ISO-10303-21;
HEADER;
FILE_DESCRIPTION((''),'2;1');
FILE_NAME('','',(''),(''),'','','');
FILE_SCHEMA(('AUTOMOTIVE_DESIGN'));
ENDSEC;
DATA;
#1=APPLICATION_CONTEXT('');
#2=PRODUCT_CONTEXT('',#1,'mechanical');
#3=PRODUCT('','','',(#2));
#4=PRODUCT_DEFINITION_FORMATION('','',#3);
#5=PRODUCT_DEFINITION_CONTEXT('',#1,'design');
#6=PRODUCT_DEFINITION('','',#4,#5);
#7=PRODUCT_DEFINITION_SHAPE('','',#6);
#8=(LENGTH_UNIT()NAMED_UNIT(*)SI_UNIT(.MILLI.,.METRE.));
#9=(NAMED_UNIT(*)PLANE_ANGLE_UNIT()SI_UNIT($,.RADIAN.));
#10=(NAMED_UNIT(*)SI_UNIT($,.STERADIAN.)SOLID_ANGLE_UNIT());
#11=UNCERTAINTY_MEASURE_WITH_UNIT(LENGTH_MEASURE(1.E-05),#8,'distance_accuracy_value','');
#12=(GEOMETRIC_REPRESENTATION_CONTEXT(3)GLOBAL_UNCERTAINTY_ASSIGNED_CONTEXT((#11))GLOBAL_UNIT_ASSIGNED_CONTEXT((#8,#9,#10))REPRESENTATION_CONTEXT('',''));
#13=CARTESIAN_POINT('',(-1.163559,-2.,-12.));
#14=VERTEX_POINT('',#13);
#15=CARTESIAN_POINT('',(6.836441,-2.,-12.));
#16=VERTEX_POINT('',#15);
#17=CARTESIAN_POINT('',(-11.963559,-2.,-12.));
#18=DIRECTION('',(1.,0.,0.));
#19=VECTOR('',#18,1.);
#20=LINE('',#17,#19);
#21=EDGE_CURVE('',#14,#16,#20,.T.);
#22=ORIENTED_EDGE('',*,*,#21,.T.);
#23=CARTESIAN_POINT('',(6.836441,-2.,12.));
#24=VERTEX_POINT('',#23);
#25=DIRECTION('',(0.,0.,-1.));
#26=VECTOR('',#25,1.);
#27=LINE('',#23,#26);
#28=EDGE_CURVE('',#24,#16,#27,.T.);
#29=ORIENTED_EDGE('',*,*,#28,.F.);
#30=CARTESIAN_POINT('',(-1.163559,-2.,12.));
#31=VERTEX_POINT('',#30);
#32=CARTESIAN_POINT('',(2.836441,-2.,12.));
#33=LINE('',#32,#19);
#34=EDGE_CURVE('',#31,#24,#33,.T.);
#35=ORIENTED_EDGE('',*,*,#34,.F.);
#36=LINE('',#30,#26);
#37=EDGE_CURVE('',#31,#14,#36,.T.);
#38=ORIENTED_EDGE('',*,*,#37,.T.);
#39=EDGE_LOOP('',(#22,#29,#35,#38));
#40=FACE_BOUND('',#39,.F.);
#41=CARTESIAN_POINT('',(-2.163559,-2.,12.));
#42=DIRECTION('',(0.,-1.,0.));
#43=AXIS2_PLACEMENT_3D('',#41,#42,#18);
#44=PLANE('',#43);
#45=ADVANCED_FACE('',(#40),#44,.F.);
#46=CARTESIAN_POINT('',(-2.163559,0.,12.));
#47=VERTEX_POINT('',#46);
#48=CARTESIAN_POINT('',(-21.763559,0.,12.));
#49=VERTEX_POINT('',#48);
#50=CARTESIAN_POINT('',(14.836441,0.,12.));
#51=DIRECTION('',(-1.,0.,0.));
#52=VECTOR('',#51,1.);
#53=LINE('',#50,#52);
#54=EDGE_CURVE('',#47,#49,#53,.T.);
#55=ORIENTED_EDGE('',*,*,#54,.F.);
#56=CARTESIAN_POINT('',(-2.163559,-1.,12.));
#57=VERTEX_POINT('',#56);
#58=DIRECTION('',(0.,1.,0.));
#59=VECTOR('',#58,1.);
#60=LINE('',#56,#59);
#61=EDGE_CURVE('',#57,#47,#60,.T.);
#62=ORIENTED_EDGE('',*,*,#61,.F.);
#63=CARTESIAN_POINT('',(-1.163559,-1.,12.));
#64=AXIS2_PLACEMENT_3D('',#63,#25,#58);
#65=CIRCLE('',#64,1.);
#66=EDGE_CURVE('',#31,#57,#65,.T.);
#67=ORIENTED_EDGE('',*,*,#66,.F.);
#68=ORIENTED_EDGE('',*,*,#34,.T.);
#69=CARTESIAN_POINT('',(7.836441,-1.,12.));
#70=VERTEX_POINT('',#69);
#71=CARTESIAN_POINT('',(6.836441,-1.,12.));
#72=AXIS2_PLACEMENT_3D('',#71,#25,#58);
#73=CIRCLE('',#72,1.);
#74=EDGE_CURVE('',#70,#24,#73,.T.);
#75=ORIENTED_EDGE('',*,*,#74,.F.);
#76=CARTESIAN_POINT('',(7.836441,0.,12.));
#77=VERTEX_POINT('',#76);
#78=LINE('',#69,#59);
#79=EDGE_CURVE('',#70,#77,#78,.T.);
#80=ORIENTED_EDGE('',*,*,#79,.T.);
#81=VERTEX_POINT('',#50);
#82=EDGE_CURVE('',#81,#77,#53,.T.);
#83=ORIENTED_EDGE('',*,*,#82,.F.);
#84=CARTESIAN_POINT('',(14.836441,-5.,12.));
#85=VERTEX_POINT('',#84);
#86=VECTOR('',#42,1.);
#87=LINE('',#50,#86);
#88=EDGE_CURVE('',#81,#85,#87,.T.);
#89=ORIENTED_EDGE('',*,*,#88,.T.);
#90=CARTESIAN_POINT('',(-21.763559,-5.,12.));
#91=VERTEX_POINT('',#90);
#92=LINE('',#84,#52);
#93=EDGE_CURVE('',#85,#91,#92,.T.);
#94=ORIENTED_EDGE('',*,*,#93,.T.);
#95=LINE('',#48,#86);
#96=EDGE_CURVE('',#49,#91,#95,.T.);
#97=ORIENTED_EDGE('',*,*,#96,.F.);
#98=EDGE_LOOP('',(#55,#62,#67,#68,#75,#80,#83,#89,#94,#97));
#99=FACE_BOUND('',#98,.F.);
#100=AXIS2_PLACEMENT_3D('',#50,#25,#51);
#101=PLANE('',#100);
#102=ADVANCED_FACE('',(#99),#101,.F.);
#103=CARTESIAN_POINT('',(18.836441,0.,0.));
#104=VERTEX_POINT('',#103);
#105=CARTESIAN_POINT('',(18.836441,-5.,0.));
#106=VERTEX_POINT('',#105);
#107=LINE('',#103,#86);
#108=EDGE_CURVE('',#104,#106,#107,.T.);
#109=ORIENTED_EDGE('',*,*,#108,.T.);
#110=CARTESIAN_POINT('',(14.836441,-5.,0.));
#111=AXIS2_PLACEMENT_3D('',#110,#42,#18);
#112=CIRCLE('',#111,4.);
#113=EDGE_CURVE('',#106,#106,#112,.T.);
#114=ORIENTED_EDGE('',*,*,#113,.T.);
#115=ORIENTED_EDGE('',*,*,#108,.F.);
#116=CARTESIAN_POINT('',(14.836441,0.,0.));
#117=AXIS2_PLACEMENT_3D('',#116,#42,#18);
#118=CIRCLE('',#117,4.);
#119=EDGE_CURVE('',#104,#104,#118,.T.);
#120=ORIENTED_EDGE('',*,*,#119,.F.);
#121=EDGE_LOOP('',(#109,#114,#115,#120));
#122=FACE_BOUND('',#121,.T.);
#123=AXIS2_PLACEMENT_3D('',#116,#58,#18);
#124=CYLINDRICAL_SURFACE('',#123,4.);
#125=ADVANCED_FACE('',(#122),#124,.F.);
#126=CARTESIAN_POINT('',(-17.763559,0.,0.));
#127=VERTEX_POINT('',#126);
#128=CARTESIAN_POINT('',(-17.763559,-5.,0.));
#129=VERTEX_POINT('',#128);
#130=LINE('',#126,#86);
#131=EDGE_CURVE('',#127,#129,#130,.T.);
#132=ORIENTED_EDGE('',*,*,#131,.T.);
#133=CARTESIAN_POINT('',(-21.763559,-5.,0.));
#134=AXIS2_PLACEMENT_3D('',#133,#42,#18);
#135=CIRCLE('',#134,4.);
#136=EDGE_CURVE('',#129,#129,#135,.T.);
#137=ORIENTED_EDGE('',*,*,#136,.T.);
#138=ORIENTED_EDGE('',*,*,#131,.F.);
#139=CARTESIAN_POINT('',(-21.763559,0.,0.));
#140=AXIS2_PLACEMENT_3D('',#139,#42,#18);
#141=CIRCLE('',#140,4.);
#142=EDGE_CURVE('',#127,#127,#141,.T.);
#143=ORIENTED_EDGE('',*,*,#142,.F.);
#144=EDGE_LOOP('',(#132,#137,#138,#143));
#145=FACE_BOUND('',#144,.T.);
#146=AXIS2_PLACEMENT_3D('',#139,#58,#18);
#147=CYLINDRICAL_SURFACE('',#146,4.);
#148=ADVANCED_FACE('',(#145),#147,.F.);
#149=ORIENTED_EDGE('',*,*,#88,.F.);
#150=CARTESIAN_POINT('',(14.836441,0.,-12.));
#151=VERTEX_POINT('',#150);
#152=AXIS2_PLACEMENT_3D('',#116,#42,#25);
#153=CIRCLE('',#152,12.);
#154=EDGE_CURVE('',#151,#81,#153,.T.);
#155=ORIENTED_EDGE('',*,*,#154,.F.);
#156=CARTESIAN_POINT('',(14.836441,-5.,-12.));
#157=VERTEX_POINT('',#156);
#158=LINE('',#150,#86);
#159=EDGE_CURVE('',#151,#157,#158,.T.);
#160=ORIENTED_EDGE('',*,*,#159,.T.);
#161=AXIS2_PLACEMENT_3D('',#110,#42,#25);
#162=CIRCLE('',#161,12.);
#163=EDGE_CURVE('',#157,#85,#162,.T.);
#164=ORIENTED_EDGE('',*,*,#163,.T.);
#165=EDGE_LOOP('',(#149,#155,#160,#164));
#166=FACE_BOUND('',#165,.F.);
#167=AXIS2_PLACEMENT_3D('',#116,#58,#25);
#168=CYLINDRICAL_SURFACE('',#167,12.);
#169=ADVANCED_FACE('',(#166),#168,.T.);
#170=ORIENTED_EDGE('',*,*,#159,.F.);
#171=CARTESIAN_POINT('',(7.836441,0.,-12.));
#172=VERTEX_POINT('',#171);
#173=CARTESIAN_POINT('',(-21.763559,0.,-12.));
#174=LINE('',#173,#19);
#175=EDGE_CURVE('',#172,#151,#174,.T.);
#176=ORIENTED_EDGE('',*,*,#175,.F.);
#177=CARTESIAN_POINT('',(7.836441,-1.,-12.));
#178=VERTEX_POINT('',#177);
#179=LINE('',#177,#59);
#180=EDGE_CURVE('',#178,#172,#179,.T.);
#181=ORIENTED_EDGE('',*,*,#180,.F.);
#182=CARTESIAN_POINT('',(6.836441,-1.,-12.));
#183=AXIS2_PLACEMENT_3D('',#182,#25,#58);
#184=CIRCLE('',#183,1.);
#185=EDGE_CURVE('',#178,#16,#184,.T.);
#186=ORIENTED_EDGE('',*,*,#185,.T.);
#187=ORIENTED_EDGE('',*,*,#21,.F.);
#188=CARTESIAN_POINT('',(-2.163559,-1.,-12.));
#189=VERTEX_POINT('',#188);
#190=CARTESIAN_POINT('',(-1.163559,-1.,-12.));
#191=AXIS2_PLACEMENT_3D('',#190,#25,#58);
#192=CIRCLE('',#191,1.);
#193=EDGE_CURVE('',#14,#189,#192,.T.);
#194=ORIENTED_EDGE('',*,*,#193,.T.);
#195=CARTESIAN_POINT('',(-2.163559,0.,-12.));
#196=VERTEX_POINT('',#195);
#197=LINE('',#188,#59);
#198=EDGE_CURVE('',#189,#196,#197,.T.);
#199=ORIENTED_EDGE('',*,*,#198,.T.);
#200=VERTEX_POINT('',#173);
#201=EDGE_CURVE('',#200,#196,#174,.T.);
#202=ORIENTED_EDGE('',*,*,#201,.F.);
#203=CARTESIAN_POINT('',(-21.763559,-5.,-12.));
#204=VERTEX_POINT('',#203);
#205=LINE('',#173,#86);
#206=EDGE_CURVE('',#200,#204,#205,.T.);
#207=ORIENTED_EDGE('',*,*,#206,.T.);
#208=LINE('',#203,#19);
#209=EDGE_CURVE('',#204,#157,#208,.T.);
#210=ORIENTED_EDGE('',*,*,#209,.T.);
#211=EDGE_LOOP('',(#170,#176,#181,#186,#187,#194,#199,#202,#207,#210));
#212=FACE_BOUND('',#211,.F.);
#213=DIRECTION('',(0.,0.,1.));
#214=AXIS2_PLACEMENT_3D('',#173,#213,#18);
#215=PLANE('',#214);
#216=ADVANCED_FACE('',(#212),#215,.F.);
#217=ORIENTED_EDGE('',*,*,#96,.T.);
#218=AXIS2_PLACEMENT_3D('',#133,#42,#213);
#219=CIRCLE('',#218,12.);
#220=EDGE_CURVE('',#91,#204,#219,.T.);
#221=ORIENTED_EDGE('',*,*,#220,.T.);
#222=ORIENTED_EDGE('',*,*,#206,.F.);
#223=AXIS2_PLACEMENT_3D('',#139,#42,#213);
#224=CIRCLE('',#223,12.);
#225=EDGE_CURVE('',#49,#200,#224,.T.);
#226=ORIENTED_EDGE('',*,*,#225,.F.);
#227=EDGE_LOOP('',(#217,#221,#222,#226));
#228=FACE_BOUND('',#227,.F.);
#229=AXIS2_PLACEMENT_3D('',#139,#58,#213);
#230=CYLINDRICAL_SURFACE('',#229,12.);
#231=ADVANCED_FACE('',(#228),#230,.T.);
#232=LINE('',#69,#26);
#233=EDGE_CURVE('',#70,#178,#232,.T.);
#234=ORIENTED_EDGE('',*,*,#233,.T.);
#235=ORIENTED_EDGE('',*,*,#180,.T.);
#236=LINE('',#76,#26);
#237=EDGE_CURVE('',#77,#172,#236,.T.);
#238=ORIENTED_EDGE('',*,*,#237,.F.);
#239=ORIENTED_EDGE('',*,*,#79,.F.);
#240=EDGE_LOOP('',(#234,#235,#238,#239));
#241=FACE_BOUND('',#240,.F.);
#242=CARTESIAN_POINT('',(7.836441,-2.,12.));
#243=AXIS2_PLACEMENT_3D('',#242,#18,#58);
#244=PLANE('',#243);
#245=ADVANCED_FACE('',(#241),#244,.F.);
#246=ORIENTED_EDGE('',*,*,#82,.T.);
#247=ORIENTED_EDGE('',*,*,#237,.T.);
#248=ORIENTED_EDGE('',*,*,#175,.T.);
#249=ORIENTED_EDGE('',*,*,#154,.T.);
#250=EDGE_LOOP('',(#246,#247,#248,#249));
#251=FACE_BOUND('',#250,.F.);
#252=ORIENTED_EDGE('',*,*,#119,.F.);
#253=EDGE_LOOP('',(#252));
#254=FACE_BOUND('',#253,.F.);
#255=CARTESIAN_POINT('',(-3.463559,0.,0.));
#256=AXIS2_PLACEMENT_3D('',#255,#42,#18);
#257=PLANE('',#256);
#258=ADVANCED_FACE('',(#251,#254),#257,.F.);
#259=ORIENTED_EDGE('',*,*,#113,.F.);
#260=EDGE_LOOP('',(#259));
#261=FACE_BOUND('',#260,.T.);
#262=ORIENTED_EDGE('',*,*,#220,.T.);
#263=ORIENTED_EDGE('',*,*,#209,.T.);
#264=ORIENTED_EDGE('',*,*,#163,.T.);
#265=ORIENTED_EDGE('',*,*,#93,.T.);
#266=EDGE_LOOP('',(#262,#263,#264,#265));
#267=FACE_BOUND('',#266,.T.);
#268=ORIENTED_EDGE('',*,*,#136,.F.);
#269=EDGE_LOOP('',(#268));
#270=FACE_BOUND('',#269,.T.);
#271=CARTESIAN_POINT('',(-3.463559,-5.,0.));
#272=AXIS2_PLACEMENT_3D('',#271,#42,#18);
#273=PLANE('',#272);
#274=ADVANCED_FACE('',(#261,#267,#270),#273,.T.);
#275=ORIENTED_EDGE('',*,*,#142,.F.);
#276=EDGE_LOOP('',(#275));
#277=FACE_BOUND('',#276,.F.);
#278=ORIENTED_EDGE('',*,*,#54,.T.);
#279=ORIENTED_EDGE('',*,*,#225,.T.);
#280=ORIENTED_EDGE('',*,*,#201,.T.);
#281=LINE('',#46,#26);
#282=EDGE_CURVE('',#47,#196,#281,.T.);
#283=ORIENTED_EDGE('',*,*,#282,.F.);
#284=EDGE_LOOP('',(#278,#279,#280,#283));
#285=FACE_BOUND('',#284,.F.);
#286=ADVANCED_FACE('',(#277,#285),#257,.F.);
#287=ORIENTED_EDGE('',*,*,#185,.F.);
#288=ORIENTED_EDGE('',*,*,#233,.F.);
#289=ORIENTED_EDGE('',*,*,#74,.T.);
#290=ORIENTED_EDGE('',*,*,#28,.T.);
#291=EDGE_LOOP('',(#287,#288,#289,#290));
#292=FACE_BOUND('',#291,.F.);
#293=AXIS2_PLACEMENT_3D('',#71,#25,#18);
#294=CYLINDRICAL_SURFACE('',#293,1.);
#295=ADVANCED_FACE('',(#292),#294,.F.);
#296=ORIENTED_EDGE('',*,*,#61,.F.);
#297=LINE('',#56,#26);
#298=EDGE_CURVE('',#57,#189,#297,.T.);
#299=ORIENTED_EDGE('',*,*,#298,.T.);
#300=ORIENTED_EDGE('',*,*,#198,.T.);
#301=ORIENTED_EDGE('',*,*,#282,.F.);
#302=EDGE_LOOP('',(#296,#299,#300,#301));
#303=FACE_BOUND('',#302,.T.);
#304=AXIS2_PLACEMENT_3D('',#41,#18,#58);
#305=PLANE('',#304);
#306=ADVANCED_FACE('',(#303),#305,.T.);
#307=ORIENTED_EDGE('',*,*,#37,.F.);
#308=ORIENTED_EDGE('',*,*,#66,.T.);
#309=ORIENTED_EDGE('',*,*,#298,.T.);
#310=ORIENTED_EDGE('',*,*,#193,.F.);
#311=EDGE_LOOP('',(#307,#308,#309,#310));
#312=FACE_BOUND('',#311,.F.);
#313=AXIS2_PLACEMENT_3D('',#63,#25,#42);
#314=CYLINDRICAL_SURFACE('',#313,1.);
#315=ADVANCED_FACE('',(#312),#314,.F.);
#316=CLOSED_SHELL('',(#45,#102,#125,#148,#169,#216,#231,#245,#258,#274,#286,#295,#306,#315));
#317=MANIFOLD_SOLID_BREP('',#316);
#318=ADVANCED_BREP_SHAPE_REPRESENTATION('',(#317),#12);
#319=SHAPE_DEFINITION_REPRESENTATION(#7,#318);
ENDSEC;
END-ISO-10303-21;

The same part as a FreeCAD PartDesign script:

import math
import FreeCAD as App
import Part
import Sketcher
Q = App.Units.Quantity


def edges_at(feature, points):
    """Names of the edges that pass closest to the given points."""
    edges = feature.Shape.Edges
    near = lambda p: min(range(len(edges)), key=lambda i: edges[i].distToShape(Part.Vertex(*p))[0])
    return sorted({f"Edge{near(p) + 1}" for p in points})

doc = App.newDocument("Part")
params = doc.addObject("Spreadsheet::Sheet", "Params")
for row, (alias, value) in enumerate([
    ("sketch1_diameter", "8 mm"),
    ("sketch1_radius", "12 mm"),
    ("sketch1_width", "36.6 mm"),
    ("pad1_length", "5 mm"),
    ("sketch2_width", "10 mm"),
    ("sketch2_height", "2 mm"),
    ("fillet_radius", "1 mm"),
], start=1):
    params.set(f"A{row}", alias)
    params.set(f"B{row}", "=" + value)
    params.setAlias(f"B{row}", alias)

body = doc.addObject("PartDesign::Body", "Body")

sketch1 = doc.addObject("Sketcher::SketchObject", "Sketch")
body.addObject(sketch1)
sketch1.AttachmentSupport = (doc.XZ_Plane, [""])
sketch1.MapMode = "FlatFace"
sketch1.addGeometry([
    Part.LineSegment(App.Vector(14.8, 12, 0), App.Vector(-21.8, 12, 0)),
    Part.ArcOfCircle(Part.Circle(App.Vector(-21.8, 0, 0), App.Vector(0, 0, 1), 12), math.radians(90), math.radians(270)),
    Part.LineSegment(App.Vector(-21.8, -12, 0), App.Vector(14.8, -12, 0)),
    Part.ArcOfCircle(Part.Circle(App.Vector(14.8, 0, 0), App.Vector(0, 0, 1), 12), math.radians(-90), math.radians(90)),
    Part.Circle(App.Vector(-21.8, 0, 0), App.Vector(0, 0, 1), 4),
    Part.Circle(App.Vector(14.8, 0, 0), App.Vector(0, 0, 1), 4),
], False)
sketch1.addConstraint([
    Sketcher.Constraint("Tangent", 0, 2, 1, 1),
    Sketcher.Constraint("Tangent", 1, 2, 2, 1),
    Sketcher.Constraint("Tangent", 2, 2, 3, 1),
    Sketcher.Constraint("Tangent", 3, 2, 0, 1),
    Sketcher.Constraint("Horizontal", 0),
    Sketcher.Constraint("Horizontal", 2),
    Sketcher.Constraint("Coincident", 4, 3, 1, 3),
    Sketcher.Constraint("Coincident", 5, 3, 3, 3),
    Sketcher.Constraint("Equal", 4, 5),
    Sketcher.Constraint("PointOnObject", 1, 3, -1),
    Sketcher.Constraint("Diameter", 4, Q("8 mm")),
    Sketcher.Constraint("Radius", 1, Q("12 mm")),
    Sketcher.Constraint("DistanceX", 0, 2, 0, 1, Q("36.6 mm")),
    Sketcher.Constraint("DistanceX", 1, 3, -1, 1, Q("21.763559 mm")),
])
sketch1.setExpression("Constraints[10]", "Params.sketch1_diameter")
sketch1.setExpression("Constraints[11]", "Params.sketch1_radius")
sketch1.setExpression("Constraints[12]", "Params.sketch1_width")
pad1 = doc.addObject("PartDesign::Pad", "Pad")
body.addObject(pad1)
pad1.Profile = sketch1
pad1.setExpression("Length", "Params.pad1_length")

sketch2 = doc.addObject("Sketcher::SketchObject", "Sketch001")
body.addObject(sketch2)
sketch2.AttachmentSupport = (doc.XY_Plane, [""])
sketch2.MapMode = "FlatFace"
sketch2.AttachmentOffset = App.Placement(App.Vector(0, 0, 12), App.Rotation())
sketch2.addGeometry([
    Part.LineSegment(App.Vector(-2.2, 0, 0), App.Vector(-2.2, -2, 0)),
    Part.LineSegment(App.Vector(-2.2, -2, 0), App.Vector(7.8, -2, 0)),
    Part.LineSegment(App.Vector(7.8, -2, 0), App.Vector(7.8, 0, 0)),
    Part.LineSegment(App.Vector(7.8, 0, 0), App.Vector(-2.2, 0, 0)),
], False)
sketch2.addConstraint([
    Sketcher.Constraint("Coincident", 0, 2, 1, 1),
    Sketcher.Constraint("Coincident", 1, 2, 2, 1),
    Sketcher.Constraint("Coincident", 2, 2, 3, 1),
    Sketcher.Constraint("Coincident", 3, 2, 0, 1),
    Sketcher.Constraint("Vertical", 0),
    Sketcher.Constraint("Horizontal", 1),
    Sketcher.Constraint("Vertical", 2),
    Sketcher.Constraint("Horizontal", 3),
    Sketcher.Constraint("PointOnObject", 2, 2, -1),
    Sketcher.Constraint("DistanceX", 1, 1, 1, 2, Q("10 mm")),
    Sketcher.Constraint("DistanceY", 0, 2, 0, 1, Q("2 mm")),
    Sketcher.Constraint("DistanceX", 0, 2, -1, 1, Q("2.163559 mm")),
])
sketch2.setExpression("Constraints[9]", "Params.sketch2_width")
sketch2.setExpression("Constraints[10]", "Params.sketch2_height")
pocket1 = doc.addObject("PartDesign::Pocket", "Pocket")
body.addObject(pocket1)
pocket1.Profile = sketch2
pocket1.Type = "ThroughAll"
doc.recompute()

fillet = doc.addObject("PartDesign::Fillet", "Fillet")
body.addObject(fillet)
fillet.Base = (pocket1, edges_at(pocket1, [(7.836, -2, 0), (-2.164, -2, 0)]))
fillet.setExpression("Radius", "Params.fillet_radius")

doc.recompute()
